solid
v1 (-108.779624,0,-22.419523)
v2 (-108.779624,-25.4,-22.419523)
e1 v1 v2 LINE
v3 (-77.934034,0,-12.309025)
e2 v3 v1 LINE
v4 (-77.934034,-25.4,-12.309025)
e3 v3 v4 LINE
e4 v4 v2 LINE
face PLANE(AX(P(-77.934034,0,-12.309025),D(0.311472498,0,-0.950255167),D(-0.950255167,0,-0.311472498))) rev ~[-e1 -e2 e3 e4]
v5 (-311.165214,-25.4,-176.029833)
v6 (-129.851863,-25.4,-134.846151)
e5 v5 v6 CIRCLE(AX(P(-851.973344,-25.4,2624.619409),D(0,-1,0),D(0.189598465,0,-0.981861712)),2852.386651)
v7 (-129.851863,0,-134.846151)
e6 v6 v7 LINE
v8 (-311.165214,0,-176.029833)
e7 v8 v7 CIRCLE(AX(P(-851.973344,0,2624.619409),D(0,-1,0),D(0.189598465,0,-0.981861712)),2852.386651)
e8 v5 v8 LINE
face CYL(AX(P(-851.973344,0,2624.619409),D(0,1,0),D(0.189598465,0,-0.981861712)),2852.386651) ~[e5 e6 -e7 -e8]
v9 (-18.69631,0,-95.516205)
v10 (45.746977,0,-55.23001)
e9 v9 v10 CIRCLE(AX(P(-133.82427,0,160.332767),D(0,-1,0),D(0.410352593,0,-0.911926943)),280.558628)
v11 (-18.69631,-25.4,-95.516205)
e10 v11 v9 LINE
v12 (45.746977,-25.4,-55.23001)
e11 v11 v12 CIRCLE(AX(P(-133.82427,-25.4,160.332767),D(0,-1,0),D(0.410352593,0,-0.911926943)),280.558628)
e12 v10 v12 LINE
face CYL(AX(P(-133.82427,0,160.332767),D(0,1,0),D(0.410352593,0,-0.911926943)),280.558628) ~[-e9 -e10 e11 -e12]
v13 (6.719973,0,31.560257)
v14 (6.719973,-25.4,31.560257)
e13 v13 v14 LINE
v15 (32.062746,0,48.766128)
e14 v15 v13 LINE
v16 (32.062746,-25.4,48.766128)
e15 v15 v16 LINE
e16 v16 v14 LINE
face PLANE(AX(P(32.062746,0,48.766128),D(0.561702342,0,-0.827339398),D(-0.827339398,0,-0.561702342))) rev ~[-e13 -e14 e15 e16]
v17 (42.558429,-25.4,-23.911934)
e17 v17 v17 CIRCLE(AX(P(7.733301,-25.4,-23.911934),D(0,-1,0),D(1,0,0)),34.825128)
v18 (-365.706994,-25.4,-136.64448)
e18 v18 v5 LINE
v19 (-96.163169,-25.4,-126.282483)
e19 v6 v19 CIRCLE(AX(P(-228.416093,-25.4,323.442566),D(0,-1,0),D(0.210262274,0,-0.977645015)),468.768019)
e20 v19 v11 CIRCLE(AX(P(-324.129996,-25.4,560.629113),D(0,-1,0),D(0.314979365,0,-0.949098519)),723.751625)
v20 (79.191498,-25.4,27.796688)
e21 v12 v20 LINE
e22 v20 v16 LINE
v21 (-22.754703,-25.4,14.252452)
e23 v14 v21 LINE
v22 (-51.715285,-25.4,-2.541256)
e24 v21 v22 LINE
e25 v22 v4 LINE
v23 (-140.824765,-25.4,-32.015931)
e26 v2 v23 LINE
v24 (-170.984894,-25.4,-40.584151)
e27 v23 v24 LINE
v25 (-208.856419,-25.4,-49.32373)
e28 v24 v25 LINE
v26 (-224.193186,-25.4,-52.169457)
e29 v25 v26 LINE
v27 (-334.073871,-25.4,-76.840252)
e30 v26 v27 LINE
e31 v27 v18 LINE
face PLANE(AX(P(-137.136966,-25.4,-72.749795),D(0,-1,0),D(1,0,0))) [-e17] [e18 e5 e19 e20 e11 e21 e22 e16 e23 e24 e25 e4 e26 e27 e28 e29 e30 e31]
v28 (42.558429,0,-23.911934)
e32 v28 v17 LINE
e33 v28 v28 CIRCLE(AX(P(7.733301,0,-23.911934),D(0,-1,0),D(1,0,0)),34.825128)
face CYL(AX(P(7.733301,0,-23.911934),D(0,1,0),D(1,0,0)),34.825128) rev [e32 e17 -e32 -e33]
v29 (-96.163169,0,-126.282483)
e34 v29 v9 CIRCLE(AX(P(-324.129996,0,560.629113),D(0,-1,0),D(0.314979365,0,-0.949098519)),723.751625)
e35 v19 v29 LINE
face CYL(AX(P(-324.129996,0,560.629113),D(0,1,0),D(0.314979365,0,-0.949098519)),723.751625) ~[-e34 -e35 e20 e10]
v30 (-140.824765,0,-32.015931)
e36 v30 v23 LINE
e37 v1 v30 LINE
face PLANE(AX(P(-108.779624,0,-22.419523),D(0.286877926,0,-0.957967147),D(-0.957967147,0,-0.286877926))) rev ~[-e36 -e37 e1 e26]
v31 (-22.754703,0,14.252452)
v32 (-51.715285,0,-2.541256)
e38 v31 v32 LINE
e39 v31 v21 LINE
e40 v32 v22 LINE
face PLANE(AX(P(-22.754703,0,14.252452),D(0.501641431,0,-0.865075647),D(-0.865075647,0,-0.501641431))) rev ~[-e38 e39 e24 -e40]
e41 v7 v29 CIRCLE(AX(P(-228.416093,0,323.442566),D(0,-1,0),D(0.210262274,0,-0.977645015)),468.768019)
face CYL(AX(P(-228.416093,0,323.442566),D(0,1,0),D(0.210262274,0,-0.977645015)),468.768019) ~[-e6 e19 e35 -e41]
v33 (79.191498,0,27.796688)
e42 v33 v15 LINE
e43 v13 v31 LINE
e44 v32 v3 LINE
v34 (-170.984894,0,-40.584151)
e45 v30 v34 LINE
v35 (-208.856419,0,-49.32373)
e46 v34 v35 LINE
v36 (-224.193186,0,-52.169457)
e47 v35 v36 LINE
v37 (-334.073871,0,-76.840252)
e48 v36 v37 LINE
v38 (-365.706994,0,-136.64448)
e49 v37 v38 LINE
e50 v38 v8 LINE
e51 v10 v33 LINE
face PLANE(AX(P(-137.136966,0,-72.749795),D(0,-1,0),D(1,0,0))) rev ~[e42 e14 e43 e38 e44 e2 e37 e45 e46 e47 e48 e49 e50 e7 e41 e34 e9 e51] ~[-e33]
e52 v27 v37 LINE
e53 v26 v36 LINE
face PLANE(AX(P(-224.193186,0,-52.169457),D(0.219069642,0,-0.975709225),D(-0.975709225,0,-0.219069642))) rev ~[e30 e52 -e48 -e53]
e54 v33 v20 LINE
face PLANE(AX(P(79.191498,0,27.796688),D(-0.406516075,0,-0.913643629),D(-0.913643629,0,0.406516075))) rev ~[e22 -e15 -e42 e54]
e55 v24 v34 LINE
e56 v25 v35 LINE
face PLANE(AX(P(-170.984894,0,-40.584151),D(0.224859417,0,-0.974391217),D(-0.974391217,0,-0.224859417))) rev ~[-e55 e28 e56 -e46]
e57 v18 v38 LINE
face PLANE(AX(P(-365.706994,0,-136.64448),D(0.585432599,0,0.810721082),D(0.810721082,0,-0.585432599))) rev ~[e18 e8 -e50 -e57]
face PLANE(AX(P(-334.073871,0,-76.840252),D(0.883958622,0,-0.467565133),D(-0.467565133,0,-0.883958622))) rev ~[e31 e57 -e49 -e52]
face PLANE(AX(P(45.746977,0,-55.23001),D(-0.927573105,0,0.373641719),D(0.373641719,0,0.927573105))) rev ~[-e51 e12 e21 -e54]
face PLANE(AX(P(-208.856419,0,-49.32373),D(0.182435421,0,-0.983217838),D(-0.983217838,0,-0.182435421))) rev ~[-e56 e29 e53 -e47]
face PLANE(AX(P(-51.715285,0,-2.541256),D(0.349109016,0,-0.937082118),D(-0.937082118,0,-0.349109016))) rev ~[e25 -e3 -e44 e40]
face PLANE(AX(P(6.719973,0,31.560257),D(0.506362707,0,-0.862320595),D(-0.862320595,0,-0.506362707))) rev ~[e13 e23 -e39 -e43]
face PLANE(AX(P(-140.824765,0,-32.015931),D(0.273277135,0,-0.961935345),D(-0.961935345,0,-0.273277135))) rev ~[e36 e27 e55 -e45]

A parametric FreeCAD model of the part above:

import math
import FreeCAD as App
import Part
import Sketcher

V = App.Vector
Q = App.Units.Quantity

doc = App.newDocument("Part")
params = doc.addObject("Spreadsheet::Sheet", "Params")
for row, (alias, value) in enumerate([
    ("sketch1_length", "3.524 in"),
    ("pad1_length", "0.125 in"),
    ("sketch2_length", "3.524 in"),
    ("pad2_length", "1 in"),
], start=1):
    params.set(f"A{row}", alias)
    params.set(f"B{row}", "=" + value)
    params.setAlias(f"B{row}", alias)

body = doc.addObject("PartDesign::Body", "Body")

# Sketch on XZ plane
sketch1 = doc.addObject("Sketcher::SketchObject", "Sketch")
body.addObject(sketch1)
sketch1.AttachmentSupport = (doc.XZ_Plane, [""])
sketch1.MapMode = "FlatFace"
sketch1.addGeometry([
    Part.ArcOfCircle(Part.Circle(V(-134, 160, 0), V(0, 0, 1), 281), math.radians(-65.77), math.radians(-50.2)),  # 0
    Part.LineSegment(V(46, -55, 0), V(79, 28, 0)),  # 1
    Part.LineSegment(V(79, 28, 0), V(32, 49, 0)),  # 2
    Part.LineSegment(V(32, 49, 0), V(7, 32, 0)),  # 3
    Part.LineSegment(V(7, 32, 0), V(-23, 14, 0)),  # 4
    Part.LineSegment(V(-23, 14, 0), V(-52, -3, 0)),  # 5
    Part.LineSegment(V(-52, -3, 0), V(-78, -12, 0)),  # 6
    Part.LineSegment(V(-78, -12, 0), V(-109, -22, 0)),  # 7
    Part.LineSegment(V(-109, -22, 0), V(-141, -32, 0)),  # 8
    Part.LineSegment(V(-141, -32, 0), V(-171, -41, 0)),  # 9
    Part.LineSegment(V(-171, -41, 0), V(-209, -49, 0)),  # 10
    Part.LineSegment(V(-209, -49, 0), V(-224, -52, 0)),  # 11
    Part.LineSegment(V(-224, -52, 0), V(-334, -77, 0)),  # 12
    Part.LineSegment(V(-334, -77, 0), V(-366, -137, 0)),  # 13
    Part.LineSegment(V(-366, -137, 0), V(-311, -176, 0)),  # 14
    Part.ArcOfCircle(Part.Circle(V(-852, 2625, 0), V(0, 0, 1), 2852), math.radians(-79.07), math.radians(-75.34)),  # 15
    Part.ArcOfCircle(Part.Circle(V(-228, 323, 0), V(0, 0, 1), 469), math.radians(-77.86), math.radians(-73.61)),  # 16
    Part.ArcOfCircle(Part.Circle(V(-324, 561, 0), V(0, 0, 1), 724), math.radians(-71.64), math.radians(-65.04)),  # 17
    Part.Circle(V(8, -24, 0), V(0, 0, 1), 35),  # 18
], False)
sketch1.addConstraint([
    Sketcher.Constraint("Coincident", 0, 2, 1, 1),
    Sketcher.Constraint("Coincident", 1, 2, 2, 1),
    Sketcher.Constraint("Coincident", 2, 2, 3, 1),
    Sketcher.Constraint("Coincident", 3, 2, 4, 1),
    Sketcher.Constraint("Coincident", 4, 2, 5, 1),
    Sketcher.Constraint("Coincident", 5, 2, 6, 1),
    Sketcher.Constraint("Coincident", 6, 2, 7, 1),
    Sketcher.Constraint("Coincident", 7, 2, 8, 1),
    Sketcher.Constraint("Coincident", 8, 2, 9, 1),
    Sketcher.Constraint("Coincident", 9, 2, 10, 1),
    Sketcher.Constraint("Coincident", 10, 2, 11, 1),
    Sketcher.Constraint("Coincident", 11, 2, 12, 1),
    Sketcher.Constraint("Coincident", 12, 2, 13, 1),
    Sketcher.Constraint("Coincident", 13, 2, 14, 1),
    Sketcher.Constraint("Coincident", 14, 2, 15, 1),
    Sketcher.Constraint("Coincident", 15, 2, 16, 1),
    Sketcher.Constraint("Coincident", 16, 2, 17, 1),
    Sketcher.Constraint("Coincident", 17, 2, 0, 1),
    Sketcher.Constraint("Distance", 1, Q("3.524 in")),
    Sketcher.Constraint("Radius", 15, 2852.386651),
    Sketcher.Constraint("Radius", 16, 468.768019),
    Sketcher.Constraint("Diameter", 18, 69.650256),
    Sketcher.Constraint("Radius", 0, 280.558628),
    Sketcher.Constraint("Radius", 17, 723.751625),
    Sketcher.Constraint("Distance", 2, 51.583298),
    Sketcher.Constraint("DistanceX", -1, 1, 18, 3, 7.733301),
    Sketcher.Constraint("DistanceY", 0, 3, 16, 3, 163.1098),
    Sketcher.Constraint("DistanceY", 18, 3, 0, 3, 184.244701),
    Sketcher.Constraint("DistanceX", 4, 2, 1, 2, 101.946201),
    Sketcher.Constraint("DistanceY", 7, 2, 6, 2, 10.110498),
    Sketcher.Constraint("DistanceY", 10, 2, 8, 2, 17.307799),
    Sketcher.Constraint("DistanceY", 12, 2, 9, 2, 36.256101),
    Sketcher.Constraint("DistanceX", 13, 2, 9, 2, 194.7221),
    Sketcher.Constraint("DistanceY", 15, 2, 9, 2, 94.262),
    Sketcher.Constraint("Distance", 8, 33.45119),
    Sketcher.Constraint("Distance", 12, 112.61622),
    Sketcher.Constraint("Distance", 13, 67.655008),
    Sketcher.Constraint("Distance", 14, 67.27564),
    Sketcher.Constraint("DistanceX", 0, 3, -1, 1, 133.82427),
    Sketcher.Constraint("DistanceY", -1, 1, 15, 3, 2624.619409),
    Sketcher.Constraint("DistanceY", 0, 2, -1, 1, 55.23001),
    Sketcher.Constraint("DistanceY", -1, 1, 2, 2, 48.766128),
    Sketcher.Constraint("DistanceY", 8, 2, -1, 1, 32.015931),
    Sketcher.Constraint("DistanceY", 9, 2, -1, 1, 40.584151),
    Sketcher.Constraint("DistanceX", 10, 2, -1, 1, 208.856419),
    Sketcher.Constraint("DistanceX", 12, 2, -1, 1, 334.073871),
    Sketcher.Constraint("DistanceY", 13, 2, -1, 1, 136.64448),
    Sketcher.Constraint("DistanceX", 16, 2, -1, 1, 96.163169),
    Sketcher.Constraint("DistanceX", 17, 2, -1, 1, 18.69631),
    Sketcher.Constraint("DistanceX", 15, 3, 16, 3, 623.557252),
    Sketcher.Constraint("DistanceY", 18, 3, 1, 2, 51.708622),
    Sketcher.Constraint("DistanceX", 16, 3, 1, 2, 307.607591),
    Sketcher.Constraint("DistanceY", 3, 2, 2, 2, 17.205871),
    Sketcher.Constraint("DistanceX", 5, 2, 3, 2, 58.435258),
    Sketcher.Constraint("DistanceX", 5, 2, 2, 2, 83.778031),
    Sketcher.Constraint("DistanceX", 6, 2, 5, 2, 26.218749),
    Sketcher.Constraint("DistanceY", 6, 2, 5, 2, 9.767769),
    Sketcher.Constraint("DistanceY", 18, 3, 6, 2, 11.602909),
    Sketcher.Constraint("DistanceX", 7, 2, 6, 2, 30.84559),
    Sketcher.Constraint("DistanceX", 11, 2, 8, 2, 83.368421),
    Sketcher.Constraint("Distance", 4, 34.180647),
])
sketch1.setExpression("Constraints[18]", "Params.sketch1_length")
pad1 = doc.addObject("PartDesign::Pad", "Pad")
body.addObject(pad1)
pad1.Profile = sketch1
pad1.setExpression("Length", "Params.pad1_length")

# Sketch on XZ plane
sketch2 = doc.addObject("Sketcher::SketchObject", "Sketch001")
body.addObject(sketch2)
sketch2.AttachmentSupport = (doc.XZ_Plane, [""])
sketch2.MapMode = "FlatFace"
sketch2.addGeometry([
    Part.ArcOfCircle(Part.Circle(V(-134, 160, 0), V(0, 0, 1), 281), math.radians(-65.77), math.radians(-50.2)),  # 0
    Part.LineSegment(V(46, -55, 0), V(79, 28, 0)),  # 1
    Part.LineSegment(V(79, 28, 0), V(32, 49, 0)),  # 2
    Part.LineSegment(V(32, 49, 0), V(7, 32, 0)),  # 3
    Part.LineSegment(V(7, 32, 0), V(-23, 14, 0)),  # 4
    Part.LineSegment(V(-23, 14, 0), V(-52, -3, 0)),  # 5
    Part.LineSegment(V(-52, -3, 0), V(-78, -12, 0)),  # 6
    Part.LineSegment(V(-78, -12, 0), V(-109, -22, 0)),  # 7
    Part.LineSegment(V(-109, -22, 0), V(-141, -32, 0)),  # 8
    Part.LineSegment(V(-141, -32, 0), V(-171, -41, 0)),  # 9
    Part.LineSegment(V(-171, -41, 0), V(-209, -49, 0)),  # 10
    Part.LineSegment(V(-209, -49, 0), V(-224, -52, 0)),  # 11
    Part.LineSegment(V(-224, -52, 0), V(-334, -77, 0)),  # 12
    Part.LineSegment(V(-334, -77, 0), V(-366, -137, 0)),  # 13
    Part.LineSegment(V(-366, -137, 0), V(-311, -176, 0)),  # 14
    Part.ArcOfCircle(Part.Circle(V(-852, 2625, 0), V(0, 0, 1), 2852), math.radians(-79.07), math.radians(-75.34)),  # 15
    Part.ArcOfCircle(Part.Circle(V(-228, 323, 0), V(0, 0, 1), 469), math.radians(-77.86), math.radians(-73.61)),  # 16
    Part.ArcOfCircle(Part.Circle(V(-324, 561, 0), V(0, 0, 1), 724), math.radians(-71.64), math.radians(-65.04)),  # 17
    Part.Circle(V(8, -24, 0), V(0, 0, 1), 35),  # 18
], False)
sketch2.addConstraint([
    Sketcher.Constraint("Coincident", 0, 2, 1, 1),
    Sketcher.Constraint("Coincident", 1, 2, 2, 1),
    Sketcher.Constraint("Coincident", 2, 2, 3, 1),
    Sketcher.Constraint("Coincident", 3, 2, 4, 1),
    Sketcher.Constraint("Coincident", 4, 2, 5, 1),
    Sketcher.Constraint("Coincident", 5, 2, 6, 1),
    Sketcher.Constraint("Coincident", 6, 2, 7, 1),
    Sketcher.Constraint("Coincident", 7, 2, 8, 1),
    Sketcher.Constraint("Coincident", 8, 2, 9, 1),
    Sketcher.Constraint("Coincident", 9, 2, 10, 1),
    Sketcher.Constraint("Coincident", 10, 2, 11, 1),
    Sketcher.Constraint("Coincident", 11, 2, 12, 1),
    Sketcher.Constraint("Coincident", 12, 2, 13, 1),
    Sketcher.Constraint("Coincident", 13, 2, 14, 1),
    Sketcher.Constraint("Coincident", 14, 2, 15, 1),
    Sketcher.Constraint("Coincident", 15, 2, 16, 1),
    Sketcher.Constraint("Coincident", 16, 2, 17, 1),
    Sketcher.Constraint("Coincident", 17, 2, 0, 1),
    Sketcher.Constraint("Distance", 1, Q("3.524 in")),
    Sketcher.Constraint("Radius", 15, 2852.386651),
    Sketcher.Constraint("Radius", 16, 468.768019),
    Sketcher.Constraint("Diameter", 18, 69.650256),
    Sketcher.Constraint("Radius", 0, 280.558628),
    Sketcher.Constraint("Radius", 17, 723.751625),
    Sketcher.Constraint("Distance", 2, 51.583298),
    Sketcher.Constraint("DistanceX", -1, 1, 18, 3, 7.733301),
    Sketcher.Constraint("DistanceY", 0, 3, 16, 3, 163.1098),
    Sketcher.Constraint("DistanceY", 18, 3, 0, 3, 184.244701),
    Sketcher.Constraint("DistanceX", 4, 2, 1, 2, 101.946201),
    Sketcher.Constraint("DistanceY", 7, 2, 6, 2, 10.110498),
    Sketcher.Constraint("DistanceY", 10, 2, 8, 2, 17.307799),
    Sketcher.Constraint("DistanceY", 12, 2, 9, 2, 36.256101),
    Sketcher.Constraint("DistanceX", 13, 2, 9, 2, 194.7221),
    Sketcher.Constraint("DistanceY", 15, 2, 9, 2, 94.262),
    Sketcher.Constraint("Distance", 8, 33.45119),
    Sketcher.Constraint("Distance", 12, 112.61622),
    Sketcher.Constraint("Distance", 13, 67.655008),
    Sketcher.Constraint("Distance", 14, 67.27564),
    Sketcher.Constraint("DistanceX", 0, 3, -1, 1, 133.82427),
    Sketcher.Constraint("DistanceY", -1, 1, 15, 3, 2624.619409),
    Sketcher.Constraint("DistanceY", 0, 2, -1, 1, 55.23001),
    Sketcher.Constraint("DistanceY", -1, 1, 2, 2, 48.766128),
    Sketcher.Constraint("DistanceY", 8, 2, -1, 1, 32.015931),
    Sketcher.Constraint("DistanceY", 9, 2, -1, 1, 40.584151),
    Sketcher.Constraint("DistanceX", 10, 2, -1, 1, 208.856419),
    Sketcher.Constraint("DistanceX", 12, 2, -1, 1, 334.073871),
    Sketcher.Constraint("DistanceY", 13, 2, -1, 1, 136.64448),
    Sketcher.Constraint("DistanceX", 16, 2, -1, 1, 96.163169),
    Sketcher.Constraint("DistanceX", 17, 2, -1, 1, 18.69631),
    Sketcher.Constraint("DistanceX", 15, 3, 16, 3, 623.557252),
    Sketcher.Constraint("DistanceY", 18, 3, 1, 2, 51.708622),
    Sketcher.Constraint("DistanceX", 16, 3, 1, 2, 307.607591),
    Sketcher.Constraint("DistanceY", 3, 2, 2, 2, 17.205871),
    Sketcher.Constraint("DistanceX", 5, 2, 3, 2, 58.435258),
    Sketcher.Constraint("DistanceX", 5, 2, 2, 2, 83.778031),
    Sketcher.Constraint("DistanceX", 6, 2, 5, 2, 26.218749),
    Sketcher.Constraint("DistanceY", 6, 2, 5, 2, 9.767769),
    Sketcher.Constraint("DistanceY", 18, 3, 6, 2, 11.602909),
    Sketcher.Constraint("DistanceX", 7, 2, 6, 2, 30.84559),
    Sketcher.Constraint("DistanceX", 11, 2, 8, 2, 83.368421),
    Sketcher.Constraint("Distance", 4, 34.180647),
])
sketch2.setExpression("Constraints[18]", "Params.sketch2_length")
pad2 = doc.addObject("PartDesign::Pad", "Pad001")
body.addObject(pad2)
pad2.Profile = sketch2
pad2.setExpression("Length", "Params.pad2_length")

doc.recompute()
